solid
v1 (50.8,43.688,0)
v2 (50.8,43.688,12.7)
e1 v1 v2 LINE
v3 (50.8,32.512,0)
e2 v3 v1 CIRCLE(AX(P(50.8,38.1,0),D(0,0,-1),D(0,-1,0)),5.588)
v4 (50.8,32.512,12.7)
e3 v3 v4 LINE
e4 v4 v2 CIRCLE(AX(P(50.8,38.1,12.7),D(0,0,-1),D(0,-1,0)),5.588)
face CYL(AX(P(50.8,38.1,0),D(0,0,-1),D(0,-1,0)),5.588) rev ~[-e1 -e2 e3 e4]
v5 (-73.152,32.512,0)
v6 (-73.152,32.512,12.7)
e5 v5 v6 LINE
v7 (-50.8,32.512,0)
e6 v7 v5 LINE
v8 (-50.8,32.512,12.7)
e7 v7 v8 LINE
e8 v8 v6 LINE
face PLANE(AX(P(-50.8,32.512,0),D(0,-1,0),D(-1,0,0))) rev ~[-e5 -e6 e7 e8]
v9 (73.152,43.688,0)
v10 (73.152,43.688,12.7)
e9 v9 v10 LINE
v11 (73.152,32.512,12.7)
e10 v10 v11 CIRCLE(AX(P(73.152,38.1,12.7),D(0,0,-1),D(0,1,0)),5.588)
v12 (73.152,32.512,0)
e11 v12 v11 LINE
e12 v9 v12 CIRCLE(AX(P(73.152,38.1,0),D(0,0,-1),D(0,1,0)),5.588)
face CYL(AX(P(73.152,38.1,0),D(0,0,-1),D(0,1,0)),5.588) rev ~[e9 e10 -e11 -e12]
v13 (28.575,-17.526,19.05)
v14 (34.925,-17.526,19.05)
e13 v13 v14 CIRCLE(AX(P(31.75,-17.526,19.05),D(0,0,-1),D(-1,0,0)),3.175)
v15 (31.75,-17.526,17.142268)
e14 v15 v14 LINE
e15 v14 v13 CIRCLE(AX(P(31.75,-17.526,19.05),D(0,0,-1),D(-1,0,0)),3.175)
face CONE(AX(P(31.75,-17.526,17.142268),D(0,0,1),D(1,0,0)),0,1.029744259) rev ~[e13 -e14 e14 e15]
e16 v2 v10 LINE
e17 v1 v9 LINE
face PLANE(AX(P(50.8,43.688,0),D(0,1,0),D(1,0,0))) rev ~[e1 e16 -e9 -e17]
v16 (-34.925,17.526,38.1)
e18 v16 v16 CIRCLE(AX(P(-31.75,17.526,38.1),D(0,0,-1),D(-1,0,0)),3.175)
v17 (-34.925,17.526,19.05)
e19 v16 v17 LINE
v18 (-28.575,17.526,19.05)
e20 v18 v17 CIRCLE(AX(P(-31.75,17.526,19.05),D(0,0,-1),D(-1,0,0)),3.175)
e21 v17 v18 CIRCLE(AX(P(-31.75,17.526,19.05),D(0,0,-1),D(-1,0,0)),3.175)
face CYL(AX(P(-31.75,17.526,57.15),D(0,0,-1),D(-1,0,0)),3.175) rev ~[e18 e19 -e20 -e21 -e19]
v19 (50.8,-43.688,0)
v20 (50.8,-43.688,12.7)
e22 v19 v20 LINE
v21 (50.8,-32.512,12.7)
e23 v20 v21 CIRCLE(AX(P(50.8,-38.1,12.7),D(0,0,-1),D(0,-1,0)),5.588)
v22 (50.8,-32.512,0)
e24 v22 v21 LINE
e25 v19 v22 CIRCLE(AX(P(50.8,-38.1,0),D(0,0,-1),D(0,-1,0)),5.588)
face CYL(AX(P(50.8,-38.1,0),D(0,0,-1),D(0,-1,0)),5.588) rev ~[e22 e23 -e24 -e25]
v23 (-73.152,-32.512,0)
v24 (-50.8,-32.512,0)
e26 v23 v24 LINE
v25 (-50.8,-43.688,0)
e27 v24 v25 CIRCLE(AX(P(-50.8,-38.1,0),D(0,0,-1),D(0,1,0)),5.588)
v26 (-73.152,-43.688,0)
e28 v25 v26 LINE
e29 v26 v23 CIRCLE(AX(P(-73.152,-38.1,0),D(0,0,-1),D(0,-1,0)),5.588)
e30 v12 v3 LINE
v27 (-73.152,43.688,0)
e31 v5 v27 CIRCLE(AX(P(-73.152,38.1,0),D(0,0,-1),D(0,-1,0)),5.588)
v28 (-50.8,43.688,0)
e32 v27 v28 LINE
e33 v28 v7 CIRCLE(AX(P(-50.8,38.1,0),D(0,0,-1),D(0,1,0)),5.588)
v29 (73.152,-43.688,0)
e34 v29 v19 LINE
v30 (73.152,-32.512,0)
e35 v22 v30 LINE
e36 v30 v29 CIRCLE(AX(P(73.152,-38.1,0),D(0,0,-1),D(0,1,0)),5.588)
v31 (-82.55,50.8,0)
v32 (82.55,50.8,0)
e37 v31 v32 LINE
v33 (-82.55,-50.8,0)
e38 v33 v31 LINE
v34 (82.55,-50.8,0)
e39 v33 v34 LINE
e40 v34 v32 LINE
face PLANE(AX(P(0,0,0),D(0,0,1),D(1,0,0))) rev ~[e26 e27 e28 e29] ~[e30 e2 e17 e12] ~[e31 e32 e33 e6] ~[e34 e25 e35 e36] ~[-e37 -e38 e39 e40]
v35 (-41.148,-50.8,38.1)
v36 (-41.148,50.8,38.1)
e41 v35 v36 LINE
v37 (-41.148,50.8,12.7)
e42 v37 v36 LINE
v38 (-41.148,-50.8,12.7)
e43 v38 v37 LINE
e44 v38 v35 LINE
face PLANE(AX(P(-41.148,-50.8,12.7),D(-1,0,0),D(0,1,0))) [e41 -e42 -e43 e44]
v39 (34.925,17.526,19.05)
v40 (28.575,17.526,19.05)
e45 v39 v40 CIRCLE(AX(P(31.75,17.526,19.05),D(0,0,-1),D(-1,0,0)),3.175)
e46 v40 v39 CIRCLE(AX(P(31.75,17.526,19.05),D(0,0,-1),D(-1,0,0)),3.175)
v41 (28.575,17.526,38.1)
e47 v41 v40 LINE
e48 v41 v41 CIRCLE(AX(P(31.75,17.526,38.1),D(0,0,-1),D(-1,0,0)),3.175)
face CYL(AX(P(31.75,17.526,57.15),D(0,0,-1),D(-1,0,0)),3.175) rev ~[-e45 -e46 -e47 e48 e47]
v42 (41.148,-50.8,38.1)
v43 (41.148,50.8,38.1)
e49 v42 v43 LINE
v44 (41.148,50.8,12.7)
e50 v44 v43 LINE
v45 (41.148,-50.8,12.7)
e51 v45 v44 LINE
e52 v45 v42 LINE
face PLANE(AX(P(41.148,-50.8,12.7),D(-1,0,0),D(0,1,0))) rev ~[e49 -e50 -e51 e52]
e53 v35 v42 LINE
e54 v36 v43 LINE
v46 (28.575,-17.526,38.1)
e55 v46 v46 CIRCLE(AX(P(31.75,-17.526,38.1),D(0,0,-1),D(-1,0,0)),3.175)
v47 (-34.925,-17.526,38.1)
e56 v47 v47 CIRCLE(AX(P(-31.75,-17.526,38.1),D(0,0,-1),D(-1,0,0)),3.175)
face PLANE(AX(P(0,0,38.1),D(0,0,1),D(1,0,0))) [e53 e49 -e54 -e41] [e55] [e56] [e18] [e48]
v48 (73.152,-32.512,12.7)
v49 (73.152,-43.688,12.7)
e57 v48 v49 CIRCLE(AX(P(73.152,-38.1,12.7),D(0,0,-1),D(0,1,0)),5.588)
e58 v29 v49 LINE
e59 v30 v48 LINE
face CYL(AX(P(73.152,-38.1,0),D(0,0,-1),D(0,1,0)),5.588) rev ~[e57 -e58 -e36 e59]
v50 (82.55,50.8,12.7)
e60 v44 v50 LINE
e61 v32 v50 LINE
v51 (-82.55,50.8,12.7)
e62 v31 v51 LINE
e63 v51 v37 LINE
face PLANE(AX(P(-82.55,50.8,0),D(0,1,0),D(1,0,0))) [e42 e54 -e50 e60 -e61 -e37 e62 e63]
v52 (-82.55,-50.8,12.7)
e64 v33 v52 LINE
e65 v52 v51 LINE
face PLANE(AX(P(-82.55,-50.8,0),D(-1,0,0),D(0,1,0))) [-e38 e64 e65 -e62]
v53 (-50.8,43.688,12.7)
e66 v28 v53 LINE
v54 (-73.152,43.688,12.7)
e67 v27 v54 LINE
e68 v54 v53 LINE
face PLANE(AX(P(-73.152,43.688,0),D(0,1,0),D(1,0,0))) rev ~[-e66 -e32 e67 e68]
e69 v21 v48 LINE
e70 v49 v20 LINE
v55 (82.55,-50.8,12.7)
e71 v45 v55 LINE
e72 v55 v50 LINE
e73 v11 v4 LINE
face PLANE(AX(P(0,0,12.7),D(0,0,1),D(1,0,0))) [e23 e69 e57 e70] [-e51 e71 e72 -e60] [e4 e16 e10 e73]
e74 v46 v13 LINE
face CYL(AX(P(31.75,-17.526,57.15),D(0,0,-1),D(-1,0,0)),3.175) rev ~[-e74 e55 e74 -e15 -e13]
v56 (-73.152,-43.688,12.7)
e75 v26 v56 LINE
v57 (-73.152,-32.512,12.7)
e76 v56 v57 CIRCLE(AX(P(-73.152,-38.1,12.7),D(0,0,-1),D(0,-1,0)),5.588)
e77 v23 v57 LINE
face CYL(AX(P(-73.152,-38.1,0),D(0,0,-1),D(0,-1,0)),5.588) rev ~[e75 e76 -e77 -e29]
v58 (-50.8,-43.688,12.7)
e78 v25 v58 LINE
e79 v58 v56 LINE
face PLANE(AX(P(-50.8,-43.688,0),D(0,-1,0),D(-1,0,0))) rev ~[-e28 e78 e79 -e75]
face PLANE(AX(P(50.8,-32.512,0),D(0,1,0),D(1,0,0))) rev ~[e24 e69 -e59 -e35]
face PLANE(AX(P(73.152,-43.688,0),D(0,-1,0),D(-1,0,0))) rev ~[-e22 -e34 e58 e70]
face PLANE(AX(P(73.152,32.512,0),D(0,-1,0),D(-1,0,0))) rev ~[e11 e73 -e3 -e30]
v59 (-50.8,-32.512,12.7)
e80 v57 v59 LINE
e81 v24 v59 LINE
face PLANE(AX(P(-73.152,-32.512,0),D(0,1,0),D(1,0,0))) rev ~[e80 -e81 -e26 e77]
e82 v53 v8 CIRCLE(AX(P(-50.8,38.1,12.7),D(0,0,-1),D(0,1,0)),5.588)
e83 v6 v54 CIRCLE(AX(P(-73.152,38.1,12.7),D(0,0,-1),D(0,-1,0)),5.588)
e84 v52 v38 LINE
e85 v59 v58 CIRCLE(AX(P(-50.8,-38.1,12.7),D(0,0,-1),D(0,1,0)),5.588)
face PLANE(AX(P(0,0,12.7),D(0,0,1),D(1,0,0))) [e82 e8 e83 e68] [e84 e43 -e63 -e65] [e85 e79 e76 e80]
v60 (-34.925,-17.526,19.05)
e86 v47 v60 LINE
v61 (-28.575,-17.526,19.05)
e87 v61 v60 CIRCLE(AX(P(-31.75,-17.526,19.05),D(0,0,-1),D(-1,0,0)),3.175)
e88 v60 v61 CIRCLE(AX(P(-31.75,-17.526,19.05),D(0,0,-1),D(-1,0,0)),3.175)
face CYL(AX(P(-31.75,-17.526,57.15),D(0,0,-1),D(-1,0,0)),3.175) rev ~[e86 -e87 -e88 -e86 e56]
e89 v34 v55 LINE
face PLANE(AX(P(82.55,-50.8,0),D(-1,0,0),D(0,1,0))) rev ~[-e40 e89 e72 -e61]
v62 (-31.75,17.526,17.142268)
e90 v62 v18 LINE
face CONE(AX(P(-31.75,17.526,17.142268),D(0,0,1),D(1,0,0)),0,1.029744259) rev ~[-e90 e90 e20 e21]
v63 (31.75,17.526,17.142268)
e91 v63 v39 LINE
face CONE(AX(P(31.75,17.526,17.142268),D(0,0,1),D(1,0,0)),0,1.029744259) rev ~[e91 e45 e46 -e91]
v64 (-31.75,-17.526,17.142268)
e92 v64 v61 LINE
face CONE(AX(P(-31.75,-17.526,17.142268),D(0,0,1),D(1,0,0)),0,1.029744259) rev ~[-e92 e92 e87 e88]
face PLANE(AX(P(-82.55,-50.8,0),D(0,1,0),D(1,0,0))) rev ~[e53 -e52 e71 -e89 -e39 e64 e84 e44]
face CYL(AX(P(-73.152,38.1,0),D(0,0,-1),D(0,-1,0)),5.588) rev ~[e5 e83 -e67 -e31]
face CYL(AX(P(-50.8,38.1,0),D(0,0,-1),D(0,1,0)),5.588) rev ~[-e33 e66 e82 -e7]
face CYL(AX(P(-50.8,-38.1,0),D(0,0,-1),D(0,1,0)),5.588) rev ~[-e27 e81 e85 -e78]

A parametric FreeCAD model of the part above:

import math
import FreeCAD as App
import Part
import Sketcher
Q = App.Units.Quantity


def add_polygon(sketch, points):
    """Adds a closed chain of lines whose ends are joined by coincident constraints."""
    first, n = sketch.GeometryCount, len(points)
    for a, b in zip(points, points[1:] + points[:1]):
        sketch.addGeometry(Part.LineSegment(App.Vector(*a, 0), App.Vector(*b, 0)), False)
    for i in range(n):
        sketch.addConstraint(Sketcher.Constraint("Coincident", first + i, 2, first + (i + 1) % n, 1))

doc = App.newDocument("Part")
body = doc.addObject("PartDesign::Body", "Body")

# Sketch on XY plane
sketch1 = body.newObject("Sketcher::SketchObject", "Sketch")
sketch1.AttachmentSupport = (doc.getObject("XY_Plane"), [""])
sketch1.MapMode = "FlatFace"
add_polygon(sketch1, [(-83, 51), (-83, -51), (83, -51), (83, 51)])  # lines 0-3
sketch1.addGeometry(Part.LineSegment(App.Vector(-51, -44, 0), App.Vector(-73, -44, 0)), False)  # 4
sketch1.addGeometry(Part.ArcOfCircle(Part.Circle(App.Vector(-73, -38, 0), App.Vector(0, 0, 1), 6), math.radians(90), math.radians(270)), False)  # 5
sketch1.addGeometry(Part.LineSegment(App.Vector(-73, -33, 0), App.Vector(-51, -33, 0)), False)  # 6
sketch1.addGeometry(Part.ArcOfCircle(Part.Circle(App.Vector(-51, -38, 0), App.Vector(0, 0, 1), 6), math.radians(-90), math.radians(90)), False)  # 7
sketch1.addGeometry(Part.LineSegment(App.Vector(51, -33, 0), App.Vector(73, -33, 0)), False)  # 8
sketch1.addGeometry(Part.ArcOfCircle(Part.Circle(App.Vector(73, -38, 0), App.Vector(0, 0, 1), 6), math.radians(-90), math.radians(90)), False)  # 9
sketch1.addGeometry(Part.LineSegment(App.Vector(73, -44, 0), App.Vector(51, -44, 0)), False)  # 10
sketch1.addGeometry(Part.ArcOfCircle(Part.Circle(App.Vector(51, -38, 0), App.Vector(0, 0, 1), 6), math.radians(90), math.radians(270)), False)  # 11
sketch1.addGeometry(Part.ArcOfCircle(Part.Circle(App.Vector(-51, 38, 0), App.Vector(0, 0, 1), 6), math.radians(-90), math.radians(90)), False)  # 12
sketch1.addGeometry(Part.LineSegment(App.Vector(-51, 33, 0), App.Vector(-73, 33, 0)), False)  # 13
sketch1.addGeometry(Part.ArcOfCircle(Part.Circle(App.Vector(-73, 38, 0), App.Vector(0, 0, 1), 6), math.radians(90), math.radians(270)), False)  # 14
sketch1.addGeometry(Part.LineSegment(App.Vector(-73, 44, 0), App.Vector(-51, 44, 0)), False)  # 15
sketch1.addGeometry(Part.LineSegment(App.Vector(73, 33, 0), App.Vector(51, 33, 0)), False)  # 16
sketch1.addGeometry(Part.ArcOfCircle(Part.Circle(App.Vector(51, 38, 0), App.Vector(0, 0, 1), 6), math.radians(90), math.radians(270)), False)  # 17
sketch1.addGeometry(Part.LineSegment(App.Vector(51, 44, 0), App.Vector(73, 44, 0)), False)  # 18
sketch1.addGeometry(Part.ArcOfCircle(Part.Circle(App.Vector(73, 38, 0), App.Vector(0, 0, 1), 6), math.radians(-90), math.radians(90)), False)  # 19
sketch1.addConstraint([
    Sketcher.Constraint("Tangent", 4, 2, 5, 2),
    Sketcher.Constraint("Tangent", 5, 1, 6, 1),
    Sketcher.Constraint("Tangent", 6, 2, 7, 2),
    Sketcher.Constraint("Tangent", 7, 1, 4, 1),
    Sketcher.Constraint("Tangent", 8, 2, 9, 2),
    Sketcher.Constraint("Tangent", 9, 1, 10, 1),
    Sketcher.Constraint("Tangent", 10, 2, 11, 2),
    Sketcher.Constraint("Tangent", 11, 1, 8, 1),
    Sketcher.Constraint("Tangent", 12, 1, 13, 1),
    Sketcher.Constraint("Tangent", 13, 2, 14, 2),
    Sketcher.Constraint("Tangent", 14, 1, 15, 1),
    Sketcher.Constraint("Tangent", 15, 2, 12, 2),
    Sketcher.Constraint("Tangent", 16, 2, 17, 2),
    Sketcher.Constraint("Tangent", 17, 1, 18, 1),
    Sketcher.Constraint("Tangent", 18, 2, 19, 2),
    Sketcher.Constraint("Tangent", 19, 1, 16, 1),
    Sketcher.Constraint("Vertical", 0),
    Sketcher.Constraint("Horizontal", 1),
    Sketcher.Constraint("Vertical", 2),
    Sketcher.Constraint("Horizontal", 3),
    Sketcher.Constraint("Horizontal", 4),
    Sketcher.Constraint("Horizontal", 6),
    Sketcher.Constraint("Horizontal", 8),
    Sketcher.Constraint("Horizontal", 10),
    Sketcher.Constraint("Horizontal", 13),
    Sketcher.Constraint("Horizontal", 15),
    Sketcher.Constraint("Horizontal", 16),
    Sketcher.Constraint("Horizontal", 18),
    Sketcher.Constraint("Equal", 7, 9),
    Sketcher.Constraint("Equal", 11, 12),
    Sketcher.Constraint("Equal", 14, 17),
    Sketcher.Constraint("Symmetric", 11, 3, 12, 3, -1, 1),
    Sketcher.Constraint("Symmetric", 7, 3, 17, 3, -1, 1),
    Sketcher.Constraint("Symmetric", 0, 2, 2, 2, -1, 1),
    Sketcher.Constraint("Symmetric", 5, 3, 9, 3, -2),
    Sketcher.Constraint("Vertical", 7, 3, 12, 3),
    Sketcher.Constraint("Vertical", 5, 3, 14, 3),
    Sketcher.Constraint("Vertical", 9, 3, 19, 3),
    Sketcher.Constraint("DistanceY", 0, 2, 0, 1, Q("4 in")),
    Sketcher.Constraint("Radius", 5, Q("0.22 in")),
    Sketcher.Constraint("DistanceX", 1, 1, 1, 2, Q("6.5 in")),
    Sketcher.Constraint("DistanceX", 7, 3, -1, 1, Q("2 in")),
    Sketcher.Constraint("DistanceY", 7, 3, 12, 3, Q("3 in")),
    Sketcher.Constraint("DistanceX", 4, 2, 4, 1, Q("0.88 in")),
])
pad1 = body.newObject("PartDesign::Pad", "Pad")
pad1.Profile = sketch1
pad1.Length = Q("0.5 in")

# Sketch on XY plane
sketch2 = body.newObject("Sketcher::SketchObject", "Sketch001")
sketch2.AttachmentSupport = (doc.getObject("XY_Plane"), [""])
sketch2.MapMode = "FlatFace"
sketch2.AttachmentOffset = App.Placement(App.Vector(0, 0, 0.5 * 25.4), App.Rotation())
add_polygon(sketch2, [(-41, 51), (-41, -51), (41, -51), (41, 51)])  # lines 0-3
sketch2.addConstraint([
    Sketcher.Constraint("Vertical", 0),
    Sketcher.Constraint("Horizontal", 1),
    Sketcher.Constraint("Vertical", 2),
    Sketcher.Constraint("Horizontal", 3),
    Sketcher.Constraint("Symmetric", 0, 2, 2, 2, -1, 1),
    Sketcher.Constraint("DistanceY", 0, 2, 0, 1, Q("4 in")),
    Sketcher.Constraint("DistanceX", 1, 1, 1, 2, Q("3.24 in")),
])
pad2 = body.newObject("PartDesign::Pad", "Pad001")
pad2.Profile = sketch2
pad2.Length = Q("1 in")

# Sketch on XY plane
sketch3 = body.newObject("Sketcher::SketchObject", "Sketch002")
sketch3.AttachmentSupport = (doc.getObject("XY_Plane"), [""])
sketch3.MapMode = "FlatFace"
sketch3.AttachmentOffset = App.Placement(App.Vector(0, 0, 1.5 * 25.4), App.Rotation())
sketch3.addGeometry([
    Part.Circle(App.Vector(-31.8, 17.5, 0), App.Vector(0, 0, 1), 3.2),
    Part.Circle(App.Vector(-31.8, -17.5, 0), App.Vector(0, 0, 1), 3.2),
    Part.Circle(App.Vector(31.8, -17.5, 0), App.Vector(0, 0, 1), 3.2),
    Part.Circle(App.Vector(31.8, 17.5, 0), App.Vector(0, 0, 1), 3.2),
], False)
sketch3.addConstraint([
    Sketcher.Constraint("Equal", 0, 1),
    Sketcher.Constraint("Equal", 1, 2),
    Sketcher.Constraint("Equal", 2, 3),
    Sketcher.Constraint("Symmetric", 0, 3, 2, 3, -1, 1),
    Sketcher.Constraint("Symmetric", 1, 3, 3, 3, -1, 1),
    Sketcher.Constraint("Symmetric", 1, 3, 2, 3, -2),
    Sketcher.Constraint("Diameter", 0, Q("0.25 in")),
    Sketcher.Constraint("DistanceX", 1, 3, 2, 3, Q("2.5 in")),
    Sketcher.Constraint("DistanceY", -1, 1, 0, 3, Q("0.69 in")),
])
doc.recompute()
hole = body.newObject("PartDesign::Hole", "Hole")
hole.Profile = sketch3
hole.ThreadType = "None"
hole.Diameter = Q("0.25 in")
hole.DepthType = "Dimension"
hole.Depth = Q("0.75 in")
hole.DrillPoint = "Angled"
hole.DrillPointAngle = 118

doc.recompute()
